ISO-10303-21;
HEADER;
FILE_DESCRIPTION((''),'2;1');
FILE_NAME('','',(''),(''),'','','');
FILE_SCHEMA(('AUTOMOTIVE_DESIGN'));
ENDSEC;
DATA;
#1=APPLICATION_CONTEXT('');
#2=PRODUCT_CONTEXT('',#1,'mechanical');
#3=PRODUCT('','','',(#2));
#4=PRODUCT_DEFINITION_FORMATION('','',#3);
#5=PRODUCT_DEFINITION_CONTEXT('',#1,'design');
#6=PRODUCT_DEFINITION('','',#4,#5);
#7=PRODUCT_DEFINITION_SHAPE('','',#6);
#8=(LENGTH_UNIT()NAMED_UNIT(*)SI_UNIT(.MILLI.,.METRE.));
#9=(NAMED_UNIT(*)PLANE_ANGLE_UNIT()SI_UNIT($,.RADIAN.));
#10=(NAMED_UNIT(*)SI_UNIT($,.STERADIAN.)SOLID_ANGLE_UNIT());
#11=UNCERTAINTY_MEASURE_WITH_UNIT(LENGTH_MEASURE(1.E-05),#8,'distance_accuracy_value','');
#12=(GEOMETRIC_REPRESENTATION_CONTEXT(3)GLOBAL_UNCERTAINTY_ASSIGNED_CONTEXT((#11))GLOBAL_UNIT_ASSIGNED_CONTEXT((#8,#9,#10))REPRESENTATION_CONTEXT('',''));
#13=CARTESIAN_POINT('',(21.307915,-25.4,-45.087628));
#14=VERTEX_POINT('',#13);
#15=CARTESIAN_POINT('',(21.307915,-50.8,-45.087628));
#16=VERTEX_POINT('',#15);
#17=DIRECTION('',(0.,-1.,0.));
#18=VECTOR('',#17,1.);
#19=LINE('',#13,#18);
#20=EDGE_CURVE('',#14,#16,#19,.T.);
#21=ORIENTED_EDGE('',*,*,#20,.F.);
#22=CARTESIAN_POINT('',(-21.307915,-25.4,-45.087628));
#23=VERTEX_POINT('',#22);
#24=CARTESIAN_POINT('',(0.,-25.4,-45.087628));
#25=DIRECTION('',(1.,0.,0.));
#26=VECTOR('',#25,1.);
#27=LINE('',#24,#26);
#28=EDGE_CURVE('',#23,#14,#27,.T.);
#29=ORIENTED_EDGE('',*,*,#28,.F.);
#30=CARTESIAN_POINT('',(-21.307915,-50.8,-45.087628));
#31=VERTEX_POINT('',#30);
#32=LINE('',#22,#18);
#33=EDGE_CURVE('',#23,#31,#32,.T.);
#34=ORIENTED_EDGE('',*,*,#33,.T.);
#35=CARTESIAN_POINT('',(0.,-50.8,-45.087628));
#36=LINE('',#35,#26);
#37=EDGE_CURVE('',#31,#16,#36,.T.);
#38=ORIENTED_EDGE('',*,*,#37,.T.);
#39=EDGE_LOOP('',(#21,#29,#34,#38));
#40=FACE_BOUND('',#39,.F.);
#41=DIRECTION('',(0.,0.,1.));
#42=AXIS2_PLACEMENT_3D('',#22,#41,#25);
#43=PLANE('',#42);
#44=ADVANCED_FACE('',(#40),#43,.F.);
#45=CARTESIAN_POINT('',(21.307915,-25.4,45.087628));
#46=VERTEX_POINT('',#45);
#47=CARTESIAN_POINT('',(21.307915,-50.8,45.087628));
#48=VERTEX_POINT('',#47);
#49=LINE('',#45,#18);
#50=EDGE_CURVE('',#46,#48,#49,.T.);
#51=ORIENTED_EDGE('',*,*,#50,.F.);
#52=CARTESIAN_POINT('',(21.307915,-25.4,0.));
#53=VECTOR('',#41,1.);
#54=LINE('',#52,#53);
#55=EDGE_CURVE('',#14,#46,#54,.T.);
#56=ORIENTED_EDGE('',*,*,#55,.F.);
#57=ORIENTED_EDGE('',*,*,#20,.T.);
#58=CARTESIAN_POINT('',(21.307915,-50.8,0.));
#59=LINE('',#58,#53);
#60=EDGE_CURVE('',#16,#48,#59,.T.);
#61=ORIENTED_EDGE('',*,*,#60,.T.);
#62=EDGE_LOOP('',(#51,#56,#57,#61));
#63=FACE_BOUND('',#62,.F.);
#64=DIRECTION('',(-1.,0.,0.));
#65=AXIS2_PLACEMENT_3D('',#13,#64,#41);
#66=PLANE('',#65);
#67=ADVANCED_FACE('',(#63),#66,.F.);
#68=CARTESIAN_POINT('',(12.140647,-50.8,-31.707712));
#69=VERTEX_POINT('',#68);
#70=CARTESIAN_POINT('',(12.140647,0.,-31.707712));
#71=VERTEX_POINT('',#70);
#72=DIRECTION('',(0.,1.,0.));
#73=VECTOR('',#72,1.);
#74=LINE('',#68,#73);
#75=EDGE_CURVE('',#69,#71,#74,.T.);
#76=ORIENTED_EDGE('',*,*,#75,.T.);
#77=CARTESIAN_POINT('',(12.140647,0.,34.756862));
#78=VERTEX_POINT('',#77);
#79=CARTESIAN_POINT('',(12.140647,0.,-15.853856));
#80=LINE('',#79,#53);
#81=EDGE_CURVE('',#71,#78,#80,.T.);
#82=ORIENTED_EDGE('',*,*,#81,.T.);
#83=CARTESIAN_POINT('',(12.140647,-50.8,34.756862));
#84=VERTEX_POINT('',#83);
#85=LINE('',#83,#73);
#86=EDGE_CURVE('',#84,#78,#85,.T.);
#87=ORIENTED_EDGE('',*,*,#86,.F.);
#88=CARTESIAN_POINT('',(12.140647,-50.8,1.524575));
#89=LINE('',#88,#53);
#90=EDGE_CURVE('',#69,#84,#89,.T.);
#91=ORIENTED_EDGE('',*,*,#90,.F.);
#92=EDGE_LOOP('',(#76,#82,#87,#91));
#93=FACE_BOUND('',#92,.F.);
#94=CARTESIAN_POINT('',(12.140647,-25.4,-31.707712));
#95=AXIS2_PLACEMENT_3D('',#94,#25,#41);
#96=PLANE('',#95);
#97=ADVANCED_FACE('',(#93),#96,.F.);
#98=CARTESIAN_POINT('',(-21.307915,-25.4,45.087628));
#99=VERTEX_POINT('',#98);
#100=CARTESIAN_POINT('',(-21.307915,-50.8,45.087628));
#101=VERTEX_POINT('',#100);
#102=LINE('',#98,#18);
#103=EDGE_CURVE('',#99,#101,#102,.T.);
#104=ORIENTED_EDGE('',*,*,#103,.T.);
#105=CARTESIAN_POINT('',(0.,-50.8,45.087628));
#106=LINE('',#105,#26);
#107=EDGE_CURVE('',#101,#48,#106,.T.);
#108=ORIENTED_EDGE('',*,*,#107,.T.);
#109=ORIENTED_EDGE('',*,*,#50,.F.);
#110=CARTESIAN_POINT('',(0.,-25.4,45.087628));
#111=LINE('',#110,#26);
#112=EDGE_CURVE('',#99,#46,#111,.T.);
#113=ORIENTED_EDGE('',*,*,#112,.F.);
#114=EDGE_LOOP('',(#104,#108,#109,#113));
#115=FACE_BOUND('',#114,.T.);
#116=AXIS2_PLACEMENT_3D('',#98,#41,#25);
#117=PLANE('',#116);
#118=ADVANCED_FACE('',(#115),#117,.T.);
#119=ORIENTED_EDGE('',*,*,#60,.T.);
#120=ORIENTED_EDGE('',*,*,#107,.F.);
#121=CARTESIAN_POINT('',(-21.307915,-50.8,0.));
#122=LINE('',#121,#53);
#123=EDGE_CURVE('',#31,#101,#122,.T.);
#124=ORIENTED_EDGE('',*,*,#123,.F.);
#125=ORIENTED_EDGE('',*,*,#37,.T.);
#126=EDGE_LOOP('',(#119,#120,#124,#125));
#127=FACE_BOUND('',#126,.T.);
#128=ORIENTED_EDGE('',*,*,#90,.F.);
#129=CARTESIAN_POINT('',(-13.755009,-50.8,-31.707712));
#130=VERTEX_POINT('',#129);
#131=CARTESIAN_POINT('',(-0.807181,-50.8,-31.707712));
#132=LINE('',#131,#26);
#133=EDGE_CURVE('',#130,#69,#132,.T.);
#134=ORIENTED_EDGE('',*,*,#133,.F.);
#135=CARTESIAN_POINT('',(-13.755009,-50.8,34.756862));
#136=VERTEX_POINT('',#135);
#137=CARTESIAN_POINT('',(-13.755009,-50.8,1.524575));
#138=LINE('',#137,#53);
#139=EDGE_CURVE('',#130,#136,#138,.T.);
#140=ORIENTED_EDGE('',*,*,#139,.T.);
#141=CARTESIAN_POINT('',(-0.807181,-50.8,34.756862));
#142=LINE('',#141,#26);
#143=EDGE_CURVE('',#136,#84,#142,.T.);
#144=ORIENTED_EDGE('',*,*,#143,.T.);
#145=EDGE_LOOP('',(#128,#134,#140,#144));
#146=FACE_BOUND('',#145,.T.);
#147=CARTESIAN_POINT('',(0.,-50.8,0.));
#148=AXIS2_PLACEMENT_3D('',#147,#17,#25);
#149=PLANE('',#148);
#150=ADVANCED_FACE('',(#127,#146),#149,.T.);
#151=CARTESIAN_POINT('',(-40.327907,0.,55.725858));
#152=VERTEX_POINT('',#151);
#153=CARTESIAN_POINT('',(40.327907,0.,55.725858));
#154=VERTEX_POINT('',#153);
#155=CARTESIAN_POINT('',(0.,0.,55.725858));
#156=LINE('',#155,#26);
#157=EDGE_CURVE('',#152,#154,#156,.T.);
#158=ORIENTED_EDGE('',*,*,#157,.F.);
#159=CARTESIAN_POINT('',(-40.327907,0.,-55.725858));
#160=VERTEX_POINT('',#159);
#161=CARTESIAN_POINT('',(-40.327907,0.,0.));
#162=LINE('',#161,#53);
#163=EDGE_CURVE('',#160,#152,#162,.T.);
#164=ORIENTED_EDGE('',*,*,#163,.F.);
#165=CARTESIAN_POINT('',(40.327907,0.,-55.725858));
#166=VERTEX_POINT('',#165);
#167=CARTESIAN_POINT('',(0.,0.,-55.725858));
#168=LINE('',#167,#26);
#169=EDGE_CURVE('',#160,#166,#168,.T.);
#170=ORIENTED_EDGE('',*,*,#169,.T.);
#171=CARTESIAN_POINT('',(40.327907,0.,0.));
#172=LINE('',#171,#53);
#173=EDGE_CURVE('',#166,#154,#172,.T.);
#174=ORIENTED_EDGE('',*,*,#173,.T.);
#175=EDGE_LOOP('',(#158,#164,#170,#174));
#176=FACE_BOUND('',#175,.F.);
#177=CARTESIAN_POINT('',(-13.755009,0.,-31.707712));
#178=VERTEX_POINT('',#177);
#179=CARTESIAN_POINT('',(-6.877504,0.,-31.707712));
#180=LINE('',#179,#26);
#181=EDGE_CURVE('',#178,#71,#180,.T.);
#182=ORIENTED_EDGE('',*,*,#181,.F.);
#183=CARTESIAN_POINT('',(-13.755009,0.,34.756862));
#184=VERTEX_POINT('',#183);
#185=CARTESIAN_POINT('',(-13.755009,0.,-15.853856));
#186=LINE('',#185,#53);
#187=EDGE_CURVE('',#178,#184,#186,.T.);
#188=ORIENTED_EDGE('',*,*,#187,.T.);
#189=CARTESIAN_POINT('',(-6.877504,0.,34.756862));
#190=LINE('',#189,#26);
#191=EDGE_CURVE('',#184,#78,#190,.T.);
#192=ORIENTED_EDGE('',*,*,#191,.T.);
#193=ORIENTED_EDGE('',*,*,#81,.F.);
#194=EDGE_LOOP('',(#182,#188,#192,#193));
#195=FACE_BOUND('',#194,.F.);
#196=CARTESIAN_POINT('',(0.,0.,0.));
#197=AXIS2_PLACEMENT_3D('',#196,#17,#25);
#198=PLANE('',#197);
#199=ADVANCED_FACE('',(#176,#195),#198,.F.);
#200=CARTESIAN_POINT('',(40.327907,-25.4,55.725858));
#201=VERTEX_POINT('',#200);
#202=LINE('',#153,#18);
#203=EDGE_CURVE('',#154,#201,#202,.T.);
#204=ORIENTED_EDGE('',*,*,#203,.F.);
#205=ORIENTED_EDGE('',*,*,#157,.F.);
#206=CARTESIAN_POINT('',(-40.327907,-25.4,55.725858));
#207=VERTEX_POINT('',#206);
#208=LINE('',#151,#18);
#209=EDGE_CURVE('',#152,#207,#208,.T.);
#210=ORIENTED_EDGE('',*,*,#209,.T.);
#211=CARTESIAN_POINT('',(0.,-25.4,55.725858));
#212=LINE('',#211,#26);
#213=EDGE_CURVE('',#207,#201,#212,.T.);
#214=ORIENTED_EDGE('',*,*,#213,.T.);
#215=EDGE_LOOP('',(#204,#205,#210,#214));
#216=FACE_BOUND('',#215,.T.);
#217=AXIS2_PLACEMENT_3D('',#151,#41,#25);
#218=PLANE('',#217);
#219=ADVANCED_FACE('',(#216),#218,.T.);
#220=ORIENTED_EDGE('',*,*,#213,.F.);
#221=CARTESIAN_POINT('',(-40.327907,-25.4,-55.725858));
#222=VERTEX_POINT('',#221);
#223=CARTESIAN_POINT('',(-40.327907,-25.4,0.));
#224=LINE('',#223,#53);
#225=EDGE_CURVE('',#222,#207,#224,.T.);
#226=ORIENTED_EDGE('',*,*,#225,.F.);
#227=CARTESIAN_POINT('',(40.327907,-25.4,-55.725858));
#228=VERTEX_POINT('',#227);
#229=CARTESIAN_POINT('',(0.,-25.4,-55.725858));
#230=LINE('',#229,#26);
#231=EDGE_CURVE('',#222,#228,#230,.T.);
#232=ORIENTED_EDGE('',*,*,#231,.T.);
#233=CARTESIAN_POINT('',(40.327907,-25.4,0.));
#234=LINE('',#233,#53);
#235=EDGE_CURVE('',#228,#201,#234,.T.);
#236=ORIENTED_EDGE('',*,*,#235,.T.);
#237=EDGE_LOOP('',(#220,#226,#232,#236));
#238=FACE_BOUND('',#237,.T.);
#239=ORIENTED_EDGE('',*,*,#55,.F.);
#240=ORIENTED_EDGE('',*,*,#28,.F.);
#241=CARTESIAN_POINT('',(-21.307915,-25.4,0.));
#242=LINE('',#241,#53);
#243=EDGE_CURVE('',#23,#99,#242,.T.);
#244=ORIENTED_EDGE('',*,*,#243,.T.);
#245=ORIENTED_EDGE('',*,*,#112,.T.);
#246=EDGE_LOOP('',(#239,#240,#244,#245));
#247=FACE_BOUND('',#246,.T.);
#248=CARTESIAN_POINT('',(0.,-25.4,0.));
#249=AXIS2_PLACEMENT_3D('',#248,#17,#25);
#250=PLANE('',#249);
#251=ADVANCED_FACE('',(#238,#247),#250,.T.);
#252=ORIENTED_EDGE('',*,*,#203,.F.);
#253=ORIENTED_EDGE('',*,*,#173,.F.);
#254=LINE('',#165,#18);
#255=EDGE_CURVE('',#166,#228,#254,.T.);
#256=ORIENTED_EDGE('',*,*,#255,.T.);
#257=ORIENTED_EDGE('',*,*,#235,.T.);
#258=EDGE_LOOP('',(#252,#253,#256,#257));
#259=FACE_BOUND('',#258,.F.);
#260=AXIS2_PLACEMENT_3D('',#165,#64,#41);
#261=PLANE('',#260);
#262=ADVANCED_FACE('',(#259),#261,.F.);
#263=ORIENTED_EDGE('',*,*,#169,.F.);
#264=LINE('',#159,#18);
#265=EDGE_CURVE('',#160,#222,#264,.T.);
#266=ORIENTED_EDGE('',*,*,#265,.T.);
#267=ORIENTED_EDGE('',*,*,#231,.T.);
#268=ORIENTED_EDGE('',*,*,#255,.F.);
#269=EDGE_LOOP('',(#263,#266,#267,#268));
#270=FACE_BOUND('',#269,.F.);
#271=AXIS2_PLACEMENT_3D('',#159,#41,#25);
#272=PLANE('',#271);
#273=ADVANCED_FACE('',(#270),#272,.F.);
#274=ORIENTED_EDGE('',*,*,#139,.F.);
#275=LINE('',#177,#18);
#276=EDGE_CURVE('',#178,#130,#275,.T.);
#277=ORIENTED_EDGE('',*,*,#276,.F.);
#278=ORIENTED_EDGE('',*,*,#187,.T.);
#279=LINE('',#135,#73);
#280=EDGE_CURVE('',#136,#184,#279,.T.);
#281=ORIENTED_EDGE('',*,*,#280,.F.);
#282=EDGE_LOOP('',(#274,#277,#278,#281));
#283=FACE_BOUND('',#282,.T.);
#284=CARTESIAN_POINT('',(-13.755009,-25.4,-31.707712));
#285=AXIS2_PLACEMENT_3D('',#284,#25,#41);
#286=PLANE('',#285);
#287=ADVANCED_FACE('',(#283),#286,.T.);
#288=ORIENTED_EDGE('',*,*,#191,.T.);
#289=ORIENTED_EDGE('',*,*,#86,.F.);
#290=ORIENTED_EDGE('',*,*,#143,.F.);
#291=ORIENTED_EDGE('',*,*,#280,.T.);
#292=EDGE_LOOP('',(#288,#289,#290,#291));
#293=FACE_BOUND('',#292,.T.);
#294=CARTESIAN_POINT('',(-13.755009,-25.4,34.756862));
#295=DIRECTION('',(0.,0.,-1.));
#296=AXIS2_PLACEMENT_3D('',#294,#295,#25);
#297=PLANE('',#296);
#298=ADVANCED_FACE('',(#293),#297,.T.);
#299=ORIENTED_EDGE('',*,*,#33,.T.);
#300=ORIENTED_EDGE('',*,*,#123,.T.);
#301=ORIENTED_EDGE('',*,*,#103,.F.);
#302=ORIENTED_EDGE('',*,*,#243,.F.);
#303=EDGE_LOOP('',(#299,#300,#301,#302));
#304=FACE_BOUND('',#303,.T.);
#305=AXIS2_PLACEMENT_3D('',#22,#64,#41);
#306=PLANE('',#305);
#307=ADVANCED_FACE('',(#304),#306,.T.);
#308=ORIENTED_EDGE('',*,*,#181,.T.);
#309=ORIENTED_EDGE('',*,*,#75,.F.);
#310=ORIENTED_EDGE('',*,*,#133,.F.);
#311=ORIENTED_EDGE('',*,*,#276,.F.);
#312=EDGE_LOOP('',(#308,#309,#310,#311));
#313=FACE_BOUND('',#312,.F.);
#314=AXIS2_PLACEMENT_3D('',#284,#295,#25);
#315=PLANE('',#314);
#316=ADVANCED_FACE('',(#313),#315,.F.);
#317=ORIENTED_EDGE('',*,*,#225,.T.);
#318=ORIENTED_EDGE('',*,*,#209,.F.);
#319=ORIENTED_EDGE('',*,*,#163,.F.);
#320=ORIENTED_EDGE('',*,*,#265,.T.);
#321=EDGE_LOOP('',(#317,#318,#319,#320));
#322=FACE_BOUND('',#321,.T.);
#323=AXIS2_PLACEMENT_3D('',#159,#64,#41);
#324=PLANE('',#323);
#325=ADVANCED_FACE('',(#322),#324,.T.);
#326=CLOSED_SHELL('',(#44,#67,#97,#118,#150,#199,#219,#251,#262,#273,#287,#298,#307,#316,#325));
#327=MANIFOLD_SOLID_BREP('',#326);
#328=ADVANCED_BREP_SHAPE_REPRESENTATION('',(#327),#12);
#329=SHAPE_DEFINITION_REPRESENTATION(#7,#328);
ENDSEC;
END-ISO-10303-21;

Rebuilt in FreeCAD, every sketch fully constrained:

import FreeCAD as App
import Part
import Sketcher
Q = App.Units.Quantity

doc = App.newDocument("Part")
body = doc.addObject("PartDesign::Body", "Body")

sketch1 = body.newObject("Sketcher::SketchObject", "Sketch")
sketch1.AttachmentSupport = (doc.getObject("XZ_Plane"), [""])
sketch1.MapMode = "FlatFace"
sketch1.addGeometry(Part.LineSegment(App.Vector(-40.327907, 55.725858, 0), App.Vector(-40.327907, -55.725858, 0)), False)
sketch1.addGeometry(Part.LineSegment(App.Vector(-40.327907, -55.725858, 0), App.Vector(40.327907, -55.725858, 0)), False)
sketch1.addGeometry(Part.LineSegment(App.Vector(40.327907, -55.725858, 0), App.Vector(40.327907, 55.725858, 0)), False)
sketch1.addGeometry(Part.LineSegment(App.Vector(40.327907, 55.725858, 0), App.Vector(-40.327907, 55.725858, 0)), False)
sketch1.addConstraint(Sketcher.Constraint("Coincident", 0, 2, 1, 1))
sketch1.addConstraint(Sketcher.Constraint("Coincident", 1, 2, 2, 1))
sketch1.addConstraint(Sketcher.Constraint("Coincident", 2, 2, 3, 1))
sketch1.addConstraint(Sketcher.Constraint("Coincident", 3, 2, 0, 1))
sketch1.addConstraint(Sketcher.Constraint("Vertical", 0))
sketch1.addConstraint(Sketcher.Constraint("Horizontal", 1))
sketch1.addConstraint(Sketcher.Constraint("Vertical", 2))
sketch1.addConstraint(Sketcher.Constraint("Horizontal", 3))
sketch1.addConstraint(Sketcher.Constraint("Symmetric", 0, 2, 2, 2, -1, 1))
sketch1.addConstraint(Sketcher.Constraint("DistanceX", 1, 1, 1, 2, 80.655814))
sketch1.addConstraint(Sketcher.Constraint("DistanceY", 0, 2, 0, 1, 111.451716))
pad1 = body.newObject("PartDesign::Pad", "Pad")
pad1.Profile = sketch1
pad1.Length = Q("1 in")

sketch2 = body.newObject("Sketcher::SketchObject", "Sketch001")
sketch2.AttachmentSupport = (doc.getObject("XZ_Plane"), [""])
sketch2.MapMode = "FlatFace"
sketch2.addGeometry(Part.LineSegment(App.Vector(-23.830123, 43.994084, 0), App.Vector(-23.830123, -43.994084, 0)), False)
sketch2.addGeometry(Part.LineSegment(App.Vector(-23.830123, -43.994084, 0), App.Vector(23.830123, -43.994084, 0)), False)
sketch2.addGeometry(Part.LineSegment(App.Vector(23.830123, -43.994084, 0), App.Vector(23.830123, 43.994084, 0)), False)
sketch2.addGeometry(Part.LineSegment(App.Vector(23.830123, 43.994084, 0), App.Vector(-23.830123, 43.994084, 0)), False)
sketch2.addConstraint(Sketcher.Constraint("Coincident", 0, 2, 1, 1))
sketch2.addConstraint(Sketcher.Constraint("Coincident", 1, 2, 2, 1))
sketch2.addConstraint(Sketcher.Constraint("Coincident", 2, 2, 3, 1))
sketch2.addConstraint(Sketcher.Constraint("Coincident", 3, 2, 0, 1))
sketch2.addConstraint(Sketcher.Constraint("Vertical", 0))
sketch2.addConstraint(Sketcher.Constraint("Horizontal", 1))
sketch2.addConstraint(Sketcher.Constraint("Vertical", 2))
sketch2.addConstraint(Sketcher.Constraint("Horizontal", 3))
sketch2.addConstraint(Sketcher.Constraint("Symmetric", 0, 2, 2, 2, -1, 1))
sketch2.addConstraint(Sketcher.Constraint("DistanceY", 0, 2, 0, 1, 87.988168))
sketch2.addConstraint(Sketcher.Constraint("DistanceX", 1, 1, 1, 2, 47.660246))
pad2 = body.newObject("PartDesign::Pad", "Pad001")
pad2.Profile = sketch2
pad2.Length = Q("1 in")

sketch3 = body.newObject("Sketcher::SketchObject", "Sketch002")
sketch3.AttachmentSupport = (doc.getObject("XZ_Plane"), [""])
sketch3.MapMode = "FlatFace"
sketch3.AttachmentOffset = App.Placement(App.Vector(0, 0, 1 * 25.4), App.Rotation())
sketch3.addGeometry(Part.LineSegment(App.Vector(-21.307915, 45.087628, 0), App.Vector(-21.307915, -45.087628, 0)), False)
sketch3.addGeometry(Part.LineSegment(App.Vector(-21.307915, -45.087628, 0), App.Vector(21.307915, -45.087628, 0)), False)
sketch3.addGeometry(Part.LineSegment(App.Vector(21.307915, -45.087628, 0), App.Vector(21.307915, 45.087628, 0)), False)
sketch3.addGeometry(Part.LineSegment(App.Vector(21.307915, 45.087628, 0), App.Vector(-21.307915, 45.087628, 0)), False)
sketch3.addGeometry(Part.LineSegment(App.Vector(12.140647, -31.707712, 0), App.Vector(-13.755009, -31.707712, 0)), False)
sketch3.addGeometry(Part.LineSegment(App.Vector(-13.755009, -31.707712, 0), App.Vector(-13.755009, 34.756862, 0)), False)
sketch3.addGeometry(Part.LineSegment(App.Vector(-13.755009, 34.756862, 0), App.Vector(12.140647, 34.756862, 0)), False)
sketch3.addGeometry(Part.LineSegment(App.Vector(12.140647, 34.756862, 0), App.Vector(12.140647, -31.707712, 0)), False)
sketch3.addConstraint(Sketcher.Constraint("Coincident", 0, 2, 1, 1))
sketch3.addConstraint(Sketcher.Constraint("Coincident", 1, 2, 2, 1))
sketch3.addConstraint(Sketcher.Constraint("Coincident", 2, 2, 3, 1))
sketch3.addConstraint(Sketcher.Constraint("Coincident", 3, 2, 0, 1))
sketch3.addConstraint(Sketcher.Constraint("Coincident", 4, 2, 5, 1))
sketch3.addConstraint(Sketcher.Constraint("Coincident", 5, 2, 6, 1))
sketch3.addConstraint(Sketcher.Constraint("Coincident", 6, 2, 7, 1))
sketch3.addConstraint(Sketcher.Constraint("Coincident", 7, 2, 4, 1))
sketch3.addConstraint(Sketcher.Constraint("Vertical", 0))
sketch3.addConstraint(Sketcher.Constraint("Horizontal", 1))
sketch3.addConstraint(Sketcher.Constraint("Vertical", 2))
sketch3.addConstraint(Sketcher.Constraint("Horizontal", 3))
sketch3.addConstraint(Sketcher.Constraint("Horizontal", 4))
sketch3.addConstraint(Sketcher.Constraint("Vertical", 5))
sketch3.addConstraint(Sketcher.Constraint("Horizontal", 6))
sketch3.addConstraint(Sketcher.Constraint("Vertical", 7))
sketch3.addConstraint(Sketcher.Constraint("Symmetric", 0, 2, 2, 2, -1, 1))
sketch3.addConstraint(Sketcher.Constraint("DistanceX", 1, 1, 1, 2, 42.61583))
sketch3.addConstraint(Sketcher.Constraint("DistanceX", 4, 2, 4, 1, 25.895656))
sketch3.addConstraint(Sketcher.Constraint("DistanceY", 0, 2, 0, 1, 90.175256))
sketch3.addConstraint(Sketcher.Constraint("DistanceY", 5, 1, 5, 2, 66.464574))
sketch3.addConstraint(Sketcher.Constraint("DistanceX", 4, 2, -1, 1, 13.755009))
sketch3.addConstraint(Sketcher.Constraint("DistanceY", -1, 1, 5, 2, 34.756862))
pad3 = body.newObject("PartDesign::Pad", "Pad002")
pad3.Profile = sketch3
pad3.Length = Q("1 in")

sketch4 = body.newObject("Sketcher::SketchObject", "Sketch003")
sketch4.AttachmentSupport = (doc.getObject("XZ_Plane"), [""])
sketch4.MapMode = "FlatFace"
sketch4.AttachmentOffset = App.Placement(App.Vector(0, 0, 1 * 25.4), App.Rotation())
sketch4.addGeometry(Part.LineSegment(App.Vector(-13.755009, 34.756862, 0), App.Vector(-13.755009, -31.707712, 0)), False)
sketch4.addGeometry(Part.LineSegment(App.Vector(-13.755009, -31.707712, 0), App.Vector(12.140647, -31.707712, 0)), False)
sketch4.addGeometry(Part.LineSegment(App.Vector(12.140647, -31.707712, 0), App.Vector(12.140647, 34.756862, 0)), False)
sketch4.addGeometry(Part.LineSegment(App.Vector(12.140647, 34.756862, 0), App.Vector(-13.755009, 34.756862, 0)), False)
sketch4.addConstraint(Sketcher.Constraint("Coincident", 0, 2, 1, 1))
sketch4.addConstraint(Sketcher.Constraint("Coincident", 1, 2, 2, 1))
sketch4.addConstraint(Sketcher.Constraint("Coincident", 2, 2, 3, 1))
sketch4.addConstraint(Sketcher.Constraint("Coincident", 3, 2, 0, 1))
sketch4.addConstraint(Sketcher.Constraint("Vertical", 0))
sketch4.addConstraint(Sketcher.Constraint("Horizontal", 1))
sketch4.addConstraint(Sketcher.Constraint("Vertical", 2))
sketch4.addConstraint(Sketcher.Constraint("Horizontal", 3))
sketch4.addConstraint(Sketcher.Constraint("DistanceX", 1, 1, 1, 2, 25.895656))
sketch4.addConstraint(Sketcher.Constraint("DistanceY", 0, 2, 0, 1, 66.464574))
sketch4.addConstraint(Sketcher.Constraint("DistanceX", 0, 2, -1, 1, 13.755009))
sketch4.addConstraint(Sketcher.Constraint("DistanceY", -1, 1, 2, 2, 34.756862))
pocket1 = body.newObject("PartDesign::Pocket", "Pocket")
pocket1.Profile = sketch4
pocket1.Length = 31.594573

doc.recompute()
